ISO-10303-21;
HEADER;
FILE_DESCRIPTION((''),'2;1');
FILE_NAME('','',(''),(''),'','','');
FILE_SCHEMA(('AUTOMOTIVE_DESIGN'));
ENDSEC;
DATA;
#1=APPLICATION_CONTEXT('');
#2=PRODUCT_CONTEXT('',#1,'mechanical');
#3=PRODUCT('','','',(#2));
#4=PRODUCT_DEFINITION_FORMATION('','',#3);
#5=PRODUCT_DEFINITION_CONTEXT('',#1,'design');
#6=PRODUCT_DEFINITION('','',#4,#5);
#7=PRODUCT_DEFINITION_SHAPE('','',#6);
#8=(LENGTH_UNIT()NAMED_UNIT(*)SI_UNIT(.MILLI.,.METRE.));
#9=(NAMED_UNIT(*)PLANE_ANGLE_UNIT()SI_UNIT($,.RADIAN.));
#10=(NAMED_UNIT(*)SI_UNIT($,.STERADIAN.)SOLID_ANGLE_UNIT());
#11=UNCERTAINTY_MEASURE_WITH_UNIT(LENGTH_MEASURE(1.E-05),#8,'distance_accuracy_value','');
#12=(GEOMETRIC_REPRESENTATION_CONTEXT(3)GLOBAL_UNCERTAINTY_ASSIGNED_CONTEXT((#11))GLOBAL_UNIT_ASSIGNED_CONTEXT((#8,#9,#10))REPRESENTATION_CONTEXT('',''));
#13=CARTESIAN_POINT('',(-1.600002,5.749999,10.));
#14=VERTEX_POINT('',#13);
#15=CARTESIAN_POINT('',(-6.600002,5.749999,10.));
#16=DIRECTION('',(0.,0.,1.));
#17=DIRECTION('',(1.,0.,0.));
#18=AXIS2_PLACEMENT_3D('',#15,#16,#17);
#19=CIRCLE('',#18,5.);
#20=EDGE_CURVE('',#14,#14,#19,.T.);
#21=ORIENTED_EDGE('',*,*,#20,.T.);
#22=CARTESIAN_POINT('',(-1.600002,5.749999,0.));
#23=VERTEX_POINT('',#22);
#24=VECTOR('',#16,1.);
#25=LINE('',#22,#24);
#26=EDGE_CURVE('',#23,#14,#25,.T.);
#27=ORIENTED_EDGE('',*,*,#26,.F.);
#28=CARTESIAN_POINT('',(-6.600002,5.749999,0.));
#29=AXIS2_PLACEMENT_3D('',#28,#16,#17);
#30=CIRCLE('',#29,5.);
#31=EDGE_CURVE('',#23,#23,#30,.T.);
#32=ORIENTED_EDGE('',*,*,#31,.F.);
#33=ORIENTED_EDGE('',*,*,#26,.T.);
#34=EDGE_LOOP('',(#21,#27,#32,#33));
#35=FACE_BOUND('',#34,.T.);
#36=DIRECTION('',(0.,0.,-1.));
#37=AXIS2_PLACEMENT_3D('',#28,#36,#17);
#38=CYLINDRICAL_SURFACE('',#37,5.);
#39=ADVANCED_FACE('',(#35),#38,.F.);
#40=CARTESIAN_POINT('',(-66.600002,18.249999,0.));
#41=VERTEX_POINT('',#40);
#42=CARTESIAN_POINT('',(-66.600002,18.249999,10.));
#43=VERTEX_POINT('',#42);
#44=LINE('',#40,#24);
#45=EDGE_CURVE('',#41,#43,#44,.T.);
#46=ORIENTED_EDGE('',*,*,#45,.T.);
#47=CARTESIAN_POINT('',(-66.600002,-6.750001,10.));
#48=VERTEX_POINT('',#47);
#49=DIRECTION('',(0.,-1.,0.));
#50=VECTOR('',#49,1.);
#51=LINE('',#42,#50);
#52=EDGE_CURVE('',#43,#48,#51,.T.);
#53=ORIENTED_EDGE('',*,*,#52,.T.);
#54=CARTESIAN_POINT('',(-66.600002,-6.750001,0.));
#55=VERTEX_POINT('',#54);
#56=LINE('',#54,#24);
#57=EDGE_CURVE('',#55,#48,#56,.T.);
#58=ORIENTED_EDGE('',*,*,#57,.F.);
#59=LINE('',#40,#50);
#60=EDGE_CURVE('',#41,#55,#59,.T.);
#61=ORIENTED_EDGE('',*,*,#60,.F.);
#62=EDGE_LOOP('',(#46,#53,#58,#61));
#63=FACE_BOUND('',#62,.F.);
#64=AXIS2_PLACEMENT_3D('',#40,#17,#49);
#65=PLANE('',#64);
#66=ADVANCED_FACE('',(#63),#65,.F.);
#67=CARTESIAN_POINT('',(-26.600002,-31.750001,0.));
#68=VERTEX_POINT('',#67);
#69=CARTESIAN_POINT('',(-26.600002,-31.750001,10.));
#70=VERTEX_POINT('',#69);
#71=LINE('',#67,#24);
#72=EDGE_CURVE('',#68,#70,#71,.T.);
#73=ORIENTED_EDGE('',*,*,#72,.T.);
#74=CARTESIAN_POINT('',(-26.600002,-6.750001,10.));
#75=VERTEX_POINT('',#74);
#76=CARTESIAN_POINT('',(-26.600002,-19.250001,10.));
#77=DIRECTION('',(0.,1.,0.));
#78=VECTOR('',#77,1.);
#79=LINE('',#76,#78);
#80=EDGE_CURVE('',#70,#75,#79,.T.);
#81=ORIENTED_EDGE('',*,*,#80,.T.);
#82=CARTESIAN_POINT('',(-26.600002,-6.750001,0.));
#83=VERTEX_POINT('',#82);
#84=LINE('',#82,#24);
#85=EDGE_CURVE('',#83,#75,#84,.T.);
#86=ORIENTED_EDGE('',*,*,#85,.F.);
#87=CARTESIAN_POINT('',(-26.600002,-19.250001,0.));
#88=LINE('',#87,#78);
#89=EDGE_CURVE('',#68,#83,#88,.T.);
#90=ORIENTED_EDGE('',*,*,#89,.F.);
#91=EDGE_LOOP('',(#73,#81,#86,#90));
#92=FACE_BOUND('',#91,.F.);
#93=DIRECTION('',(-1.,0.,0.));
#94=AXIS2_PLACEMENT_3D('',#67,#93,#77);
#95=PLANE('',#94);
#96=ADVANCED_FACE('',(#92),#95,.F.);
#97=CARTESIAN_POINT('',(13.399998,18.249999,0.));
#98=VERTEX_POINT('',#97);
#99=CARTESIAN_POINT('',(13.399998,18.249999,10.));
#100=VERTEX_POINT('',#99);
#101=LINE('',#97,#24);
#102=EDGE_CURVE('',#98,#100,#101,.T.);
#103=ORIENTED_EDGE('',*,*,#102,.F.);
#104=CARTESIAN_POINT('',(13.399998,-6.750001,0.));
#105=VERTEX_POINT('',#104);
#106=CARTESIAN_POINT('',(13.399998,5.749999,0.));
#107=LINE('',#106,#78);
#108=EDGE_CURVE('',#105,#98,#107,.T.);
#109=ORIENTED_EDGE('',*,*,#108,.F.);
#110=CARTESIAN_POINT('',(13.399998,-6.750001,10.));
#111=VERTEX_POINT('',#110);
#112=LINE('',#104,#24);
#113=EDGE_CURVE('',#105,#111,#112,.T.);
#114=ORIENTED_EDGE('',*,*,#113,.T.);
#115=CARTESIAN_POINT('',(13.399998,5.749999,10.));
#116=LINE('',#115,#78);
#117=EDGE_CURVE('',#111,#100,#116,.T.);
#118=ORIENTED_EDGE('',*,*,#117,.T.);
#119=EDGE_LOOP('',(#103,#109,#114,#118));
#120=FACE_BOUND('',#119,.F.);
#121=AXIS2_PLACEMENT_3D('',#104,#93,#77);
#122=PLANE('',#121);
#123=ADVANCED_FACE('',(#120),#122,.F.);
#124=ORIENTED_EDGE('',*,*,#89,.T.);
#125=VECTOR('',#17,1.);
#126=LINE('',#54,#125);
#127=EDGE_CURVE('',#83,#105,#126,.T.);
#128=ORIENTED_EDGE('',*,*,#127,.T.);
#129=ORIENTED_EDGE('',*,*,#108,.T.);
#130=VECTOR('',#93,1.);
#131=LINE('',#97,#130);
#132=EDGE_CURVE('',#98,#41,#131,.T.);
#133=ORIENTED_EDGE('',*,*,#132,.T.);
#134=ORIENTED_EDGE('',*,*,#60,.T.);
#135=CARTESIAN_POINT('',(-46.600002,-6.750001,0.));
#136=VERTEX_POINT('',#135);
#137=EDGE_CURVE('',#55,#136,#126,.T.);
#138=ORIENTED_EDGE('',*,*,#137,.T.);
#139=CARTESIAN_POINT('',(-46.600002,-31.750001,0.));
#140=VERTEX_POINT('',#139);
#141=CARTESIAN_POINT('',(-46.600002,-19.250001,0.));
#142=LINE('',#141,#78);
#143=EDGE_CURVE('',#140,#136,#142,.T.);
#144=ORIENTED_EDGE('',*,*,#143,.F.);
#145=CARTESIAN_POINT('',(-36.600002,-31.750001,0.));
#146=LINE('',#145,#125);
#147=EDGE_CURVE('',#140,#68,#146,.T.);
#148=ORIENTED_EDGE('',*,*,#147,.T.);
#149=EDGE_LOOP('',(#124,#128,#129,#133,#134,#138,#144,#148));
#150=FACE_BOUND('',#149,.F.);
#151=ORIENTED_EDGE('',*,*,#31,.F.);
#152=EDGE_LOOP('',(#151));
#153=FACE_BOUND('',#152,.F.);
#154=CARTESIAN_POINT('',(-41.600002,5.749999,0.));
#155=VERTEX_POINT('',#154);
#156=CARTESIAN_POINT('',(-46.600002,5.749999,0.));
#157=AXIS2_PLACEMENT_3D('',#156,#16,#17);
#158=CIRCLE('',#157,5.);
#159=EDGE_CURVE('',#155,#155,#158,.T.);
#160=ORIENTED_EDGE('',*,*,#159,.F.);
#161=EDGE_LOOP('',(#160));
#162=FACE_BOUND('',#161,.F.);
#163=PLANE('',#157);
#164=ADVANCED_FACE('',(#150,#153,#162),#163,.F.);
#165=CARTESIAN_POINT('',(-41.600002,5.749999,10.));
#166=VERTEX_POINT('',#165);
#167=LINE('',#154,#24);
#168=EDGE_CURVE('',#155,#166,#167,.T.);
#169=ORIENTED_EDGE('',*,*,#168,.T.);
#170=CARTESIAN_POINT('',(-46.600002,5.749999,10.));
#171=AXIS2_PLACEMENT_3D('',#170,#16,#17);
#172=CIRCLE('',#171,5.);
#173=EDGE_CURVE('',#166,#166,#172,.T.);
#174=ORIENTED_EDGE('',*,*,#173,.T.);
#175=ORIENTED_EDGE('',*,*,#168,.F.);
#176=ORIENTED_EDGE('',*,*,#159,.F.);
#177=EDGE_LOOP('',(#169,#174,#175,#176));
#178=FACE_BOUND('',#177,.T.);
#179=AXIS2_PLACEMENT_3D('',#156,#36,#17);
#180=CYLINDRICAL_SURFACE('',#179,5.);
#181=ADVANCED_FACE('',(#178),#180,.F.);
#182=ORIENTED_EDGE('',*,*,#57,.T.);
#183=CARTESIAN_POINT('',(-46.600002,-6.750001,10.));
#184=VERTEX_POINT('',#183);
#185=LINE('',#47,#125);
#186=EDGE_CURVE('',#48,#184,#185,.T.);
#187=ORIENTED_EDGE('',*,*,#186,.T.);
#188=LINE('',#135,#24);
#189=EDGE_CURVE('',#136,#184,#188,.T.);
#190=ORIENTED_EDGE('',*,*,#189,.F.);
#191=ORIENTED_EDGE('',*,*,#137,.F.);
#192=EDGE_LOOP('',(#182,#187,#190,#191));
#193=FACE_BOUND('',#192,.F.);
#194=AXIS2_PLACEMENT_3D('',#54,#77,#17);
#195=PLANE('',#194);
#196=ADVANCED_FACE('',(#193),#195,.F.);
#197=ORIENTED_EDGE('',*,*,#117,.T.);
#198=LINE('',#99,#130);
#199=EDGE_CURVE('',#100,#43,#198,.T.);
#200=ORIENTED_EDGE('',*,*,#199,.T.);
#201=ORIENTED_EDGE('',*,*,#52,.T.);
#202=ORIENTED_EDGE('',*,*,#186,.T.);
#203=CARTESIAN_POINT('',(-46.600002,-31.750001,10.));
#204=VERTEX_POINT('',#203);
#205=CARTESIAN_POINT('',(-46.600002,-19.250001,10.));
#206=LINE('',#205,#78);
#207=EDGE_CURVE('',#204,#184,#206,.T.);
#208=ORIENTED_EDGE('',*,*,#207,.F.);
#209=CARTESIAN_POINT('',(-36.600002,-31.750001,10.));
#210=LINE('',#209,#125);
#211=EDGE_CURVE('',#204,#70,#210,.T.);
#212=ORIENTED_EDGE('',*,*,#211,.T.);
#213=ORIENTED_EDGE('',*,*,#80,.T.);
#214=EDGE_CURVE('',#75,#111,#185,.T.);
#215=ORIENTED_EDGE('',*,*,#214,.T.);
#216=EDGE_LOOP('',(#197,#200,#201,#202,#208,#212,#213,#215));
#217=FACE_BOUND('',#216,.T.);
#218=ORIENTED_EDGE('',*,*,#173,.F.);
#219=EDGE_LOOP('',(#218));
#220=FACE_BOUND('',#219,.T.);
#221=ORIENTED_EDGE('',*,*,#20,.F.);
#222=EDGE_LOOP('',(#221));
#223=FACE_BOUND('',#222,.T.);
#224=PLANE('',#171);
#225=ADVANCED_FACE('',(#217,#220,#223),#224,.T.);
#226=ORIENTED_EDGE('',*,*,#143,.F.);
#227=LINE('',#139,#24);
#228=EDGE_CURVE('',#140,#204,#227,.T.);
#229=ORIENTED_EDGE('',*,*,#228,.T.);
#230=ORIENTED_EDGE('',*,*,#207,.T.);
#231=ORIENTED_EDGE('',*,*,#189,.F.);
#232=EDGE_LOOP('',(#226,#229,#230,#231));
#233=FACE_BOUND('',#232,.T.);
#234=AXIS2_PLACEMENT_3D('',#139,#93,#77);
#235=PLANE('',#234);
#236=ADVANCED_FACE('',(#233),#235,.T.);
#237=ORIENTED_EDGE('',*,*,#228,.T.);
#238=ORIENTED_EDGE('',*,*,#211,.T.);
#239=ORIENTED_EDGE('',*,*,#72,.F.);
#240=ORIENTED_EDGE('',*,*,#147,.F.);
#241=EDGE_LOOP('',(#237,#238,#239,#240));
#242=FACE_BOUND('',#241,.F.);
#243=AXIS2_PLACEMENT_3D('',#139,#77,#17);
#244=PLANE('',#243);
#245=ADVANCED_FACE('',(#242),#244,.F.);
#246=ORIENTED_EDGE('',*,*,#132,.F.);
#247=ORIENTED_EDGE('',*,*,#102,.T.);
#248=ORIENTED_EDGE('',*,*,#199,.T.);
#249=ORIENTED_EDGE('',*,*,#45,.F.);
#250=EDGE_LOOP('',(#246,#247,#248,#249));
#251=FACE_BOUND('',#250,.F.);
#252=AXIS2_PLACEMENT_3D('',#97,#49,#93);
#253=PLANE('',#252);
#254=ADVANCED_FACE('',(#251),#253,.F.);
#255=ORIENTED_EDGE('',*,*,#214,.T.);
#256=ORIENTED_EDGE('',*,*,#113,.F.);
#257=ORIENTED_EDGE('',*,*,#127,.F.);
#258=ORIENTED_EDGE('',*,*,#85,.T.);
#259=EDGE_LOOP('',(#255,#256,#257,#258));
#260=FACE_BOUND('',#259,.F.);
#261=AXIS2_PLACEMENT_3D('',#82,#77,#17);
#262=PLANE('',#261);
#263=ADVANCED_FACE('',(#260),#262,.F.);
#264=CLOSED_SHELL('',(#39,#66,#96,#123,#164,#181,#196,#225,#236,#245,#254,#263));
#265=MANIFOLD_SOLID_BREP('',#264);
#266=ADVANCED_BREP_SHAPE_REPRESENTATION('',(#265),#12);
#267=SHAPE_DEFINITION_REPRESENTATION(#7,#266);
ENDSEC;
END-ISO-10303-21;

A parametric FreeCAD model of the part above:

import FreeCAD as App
import Part
import Sketcher

V = App.Vector

doc = App.newDocument("Part")
body = doc.addObject("PartDesign::Body", "Body")

# Sketch on XY plane
sketch1 = doc.addObject("Sketcher::SketchObject", "Sketch")
body.addObject(sketch1)
sketch1.AttachmentSupport = (doc.XY_Plane, [""])
sketch1.MapMode = "FlatFace"
sketch1.addGeometry([
    Part.LineSegment(V(-66.600002, 18.249999, 0), V(-66.600002, -6.750001, 0)),  # 0
    Part.LineSegment(V(-66.600002, -6.750001, 0), V(-46.600002, -6.750001, 0)),  # 1
    Part.LineSegment(V(-46.600002, -6.750001, 0), V(-46.600002, -31.750001, 0)),  # 2
    Part.LineSegment(V(-46.600002, -31.750001, 0), V(-26.600002, -31.750001, 0)),  # 3
    Part.LineSegment(V(-26.600002, -31.750001, 0), V(-26.600002, -6.750001, 0)),  # 4
    Part.LineSegment(V(-26.600002, -6.750001, 0), V(13.399998, -6.750001, 0)),  # 5
    Part.LineSegment(V(13.399998, -6.750001, 0), V(13.399998, 18.249999, 0)),  # 6
    Part.LineSegment(V(13.399998, 18.249999, 0), V(-66.600002, 18.249999, 0)),  # 7
    Part.Circle(V(-46.600002, 5.749999, 0), V(0, 0, 1), 5),  # 8
    Part.Circle(V(-6.600002, 5.749999, 0), V(0, 0, 1), 5),  # 9
], False)
sketch1.addConstraint([
    Sketcher.Constraint("Coincident", 0, 2, 1, 1),
    Sketcher.Constraint("Coincident", 1, 2, 2, 1),
    Sketcher.Constraint("Coincident", 2, 2, 3, 1),
    Sketcher.Constraint("Coincident", 3, 2, 4, 1),
    Sketcher.Constraint("Coincident", 4, 2, 5, 1),
    Sketcher.Constraint("Coincident", 5, 2, 6, 1),
    Sketcher.Constraint("Coincident", 6, 2, 7, 1),
    Sketcher.Constraint("Coincident", 7, 2, 0, 1),
    Sketcher.Constraint("Vertical", 0),
    Sketcher.Constraint("Horizontal", 1),
    Sketcher.Constraint("Vertical", 2),
    Sketcher.Constraint("Horizontal", 3),
    Sketcher.Constraint("Vertical", 4),
    Sketcher.Constraint("Horizontal", 5),
    Sketcher.Constraint("Vertical", 6),
    Sketcher.Constraint("Horizontal", 7),
    Sketcher.Constraint("Equal", 8, 9),
    Sketcher.Constraint("Horizontal", 8, 3, 9, 3),
    Sketcher.Constraint("Horizontal", 1, 2, 4, 2),
    Sketcher.Constraint("Vertical", 8, 3, 1, 2),
    Sketcher.Constraint("Equal", 1, 3),
    Sketcher.Constraint("Equal", 0, 2),
    Sketcher.Constraint("Diameter", 8, 10.0),
    Sketcher.Constraint("DistanceX", 1, 1, 1, 2, 20.0),
    Sketcher.Constraint("DistanceX", 5, 1, 5, 2, 40.0),
    Sketcher.Constraint("DistanceY", 0, 2, 0, 1, 25.0),
    Sketcher.Constraint("DistanceX", 8, 3, 9, 3, 40.0),
    Sketcher.Constraint("DistanceX", 3, 2, -1, 1, 26.600002),
    Sketcher.Constraint("DistanceY", 0, 2, 8, 3, 12.5),
    Sketcher.Constraint("DistanceY", -1, 1, 8, 3, 5.749999),
])
pad1 = doc.addObject("PartDesign::Pad", "Pad")
body.addObject(pad1)
pad1.Profile = sketch1
pad1.Length = 10

doc.recompute()
